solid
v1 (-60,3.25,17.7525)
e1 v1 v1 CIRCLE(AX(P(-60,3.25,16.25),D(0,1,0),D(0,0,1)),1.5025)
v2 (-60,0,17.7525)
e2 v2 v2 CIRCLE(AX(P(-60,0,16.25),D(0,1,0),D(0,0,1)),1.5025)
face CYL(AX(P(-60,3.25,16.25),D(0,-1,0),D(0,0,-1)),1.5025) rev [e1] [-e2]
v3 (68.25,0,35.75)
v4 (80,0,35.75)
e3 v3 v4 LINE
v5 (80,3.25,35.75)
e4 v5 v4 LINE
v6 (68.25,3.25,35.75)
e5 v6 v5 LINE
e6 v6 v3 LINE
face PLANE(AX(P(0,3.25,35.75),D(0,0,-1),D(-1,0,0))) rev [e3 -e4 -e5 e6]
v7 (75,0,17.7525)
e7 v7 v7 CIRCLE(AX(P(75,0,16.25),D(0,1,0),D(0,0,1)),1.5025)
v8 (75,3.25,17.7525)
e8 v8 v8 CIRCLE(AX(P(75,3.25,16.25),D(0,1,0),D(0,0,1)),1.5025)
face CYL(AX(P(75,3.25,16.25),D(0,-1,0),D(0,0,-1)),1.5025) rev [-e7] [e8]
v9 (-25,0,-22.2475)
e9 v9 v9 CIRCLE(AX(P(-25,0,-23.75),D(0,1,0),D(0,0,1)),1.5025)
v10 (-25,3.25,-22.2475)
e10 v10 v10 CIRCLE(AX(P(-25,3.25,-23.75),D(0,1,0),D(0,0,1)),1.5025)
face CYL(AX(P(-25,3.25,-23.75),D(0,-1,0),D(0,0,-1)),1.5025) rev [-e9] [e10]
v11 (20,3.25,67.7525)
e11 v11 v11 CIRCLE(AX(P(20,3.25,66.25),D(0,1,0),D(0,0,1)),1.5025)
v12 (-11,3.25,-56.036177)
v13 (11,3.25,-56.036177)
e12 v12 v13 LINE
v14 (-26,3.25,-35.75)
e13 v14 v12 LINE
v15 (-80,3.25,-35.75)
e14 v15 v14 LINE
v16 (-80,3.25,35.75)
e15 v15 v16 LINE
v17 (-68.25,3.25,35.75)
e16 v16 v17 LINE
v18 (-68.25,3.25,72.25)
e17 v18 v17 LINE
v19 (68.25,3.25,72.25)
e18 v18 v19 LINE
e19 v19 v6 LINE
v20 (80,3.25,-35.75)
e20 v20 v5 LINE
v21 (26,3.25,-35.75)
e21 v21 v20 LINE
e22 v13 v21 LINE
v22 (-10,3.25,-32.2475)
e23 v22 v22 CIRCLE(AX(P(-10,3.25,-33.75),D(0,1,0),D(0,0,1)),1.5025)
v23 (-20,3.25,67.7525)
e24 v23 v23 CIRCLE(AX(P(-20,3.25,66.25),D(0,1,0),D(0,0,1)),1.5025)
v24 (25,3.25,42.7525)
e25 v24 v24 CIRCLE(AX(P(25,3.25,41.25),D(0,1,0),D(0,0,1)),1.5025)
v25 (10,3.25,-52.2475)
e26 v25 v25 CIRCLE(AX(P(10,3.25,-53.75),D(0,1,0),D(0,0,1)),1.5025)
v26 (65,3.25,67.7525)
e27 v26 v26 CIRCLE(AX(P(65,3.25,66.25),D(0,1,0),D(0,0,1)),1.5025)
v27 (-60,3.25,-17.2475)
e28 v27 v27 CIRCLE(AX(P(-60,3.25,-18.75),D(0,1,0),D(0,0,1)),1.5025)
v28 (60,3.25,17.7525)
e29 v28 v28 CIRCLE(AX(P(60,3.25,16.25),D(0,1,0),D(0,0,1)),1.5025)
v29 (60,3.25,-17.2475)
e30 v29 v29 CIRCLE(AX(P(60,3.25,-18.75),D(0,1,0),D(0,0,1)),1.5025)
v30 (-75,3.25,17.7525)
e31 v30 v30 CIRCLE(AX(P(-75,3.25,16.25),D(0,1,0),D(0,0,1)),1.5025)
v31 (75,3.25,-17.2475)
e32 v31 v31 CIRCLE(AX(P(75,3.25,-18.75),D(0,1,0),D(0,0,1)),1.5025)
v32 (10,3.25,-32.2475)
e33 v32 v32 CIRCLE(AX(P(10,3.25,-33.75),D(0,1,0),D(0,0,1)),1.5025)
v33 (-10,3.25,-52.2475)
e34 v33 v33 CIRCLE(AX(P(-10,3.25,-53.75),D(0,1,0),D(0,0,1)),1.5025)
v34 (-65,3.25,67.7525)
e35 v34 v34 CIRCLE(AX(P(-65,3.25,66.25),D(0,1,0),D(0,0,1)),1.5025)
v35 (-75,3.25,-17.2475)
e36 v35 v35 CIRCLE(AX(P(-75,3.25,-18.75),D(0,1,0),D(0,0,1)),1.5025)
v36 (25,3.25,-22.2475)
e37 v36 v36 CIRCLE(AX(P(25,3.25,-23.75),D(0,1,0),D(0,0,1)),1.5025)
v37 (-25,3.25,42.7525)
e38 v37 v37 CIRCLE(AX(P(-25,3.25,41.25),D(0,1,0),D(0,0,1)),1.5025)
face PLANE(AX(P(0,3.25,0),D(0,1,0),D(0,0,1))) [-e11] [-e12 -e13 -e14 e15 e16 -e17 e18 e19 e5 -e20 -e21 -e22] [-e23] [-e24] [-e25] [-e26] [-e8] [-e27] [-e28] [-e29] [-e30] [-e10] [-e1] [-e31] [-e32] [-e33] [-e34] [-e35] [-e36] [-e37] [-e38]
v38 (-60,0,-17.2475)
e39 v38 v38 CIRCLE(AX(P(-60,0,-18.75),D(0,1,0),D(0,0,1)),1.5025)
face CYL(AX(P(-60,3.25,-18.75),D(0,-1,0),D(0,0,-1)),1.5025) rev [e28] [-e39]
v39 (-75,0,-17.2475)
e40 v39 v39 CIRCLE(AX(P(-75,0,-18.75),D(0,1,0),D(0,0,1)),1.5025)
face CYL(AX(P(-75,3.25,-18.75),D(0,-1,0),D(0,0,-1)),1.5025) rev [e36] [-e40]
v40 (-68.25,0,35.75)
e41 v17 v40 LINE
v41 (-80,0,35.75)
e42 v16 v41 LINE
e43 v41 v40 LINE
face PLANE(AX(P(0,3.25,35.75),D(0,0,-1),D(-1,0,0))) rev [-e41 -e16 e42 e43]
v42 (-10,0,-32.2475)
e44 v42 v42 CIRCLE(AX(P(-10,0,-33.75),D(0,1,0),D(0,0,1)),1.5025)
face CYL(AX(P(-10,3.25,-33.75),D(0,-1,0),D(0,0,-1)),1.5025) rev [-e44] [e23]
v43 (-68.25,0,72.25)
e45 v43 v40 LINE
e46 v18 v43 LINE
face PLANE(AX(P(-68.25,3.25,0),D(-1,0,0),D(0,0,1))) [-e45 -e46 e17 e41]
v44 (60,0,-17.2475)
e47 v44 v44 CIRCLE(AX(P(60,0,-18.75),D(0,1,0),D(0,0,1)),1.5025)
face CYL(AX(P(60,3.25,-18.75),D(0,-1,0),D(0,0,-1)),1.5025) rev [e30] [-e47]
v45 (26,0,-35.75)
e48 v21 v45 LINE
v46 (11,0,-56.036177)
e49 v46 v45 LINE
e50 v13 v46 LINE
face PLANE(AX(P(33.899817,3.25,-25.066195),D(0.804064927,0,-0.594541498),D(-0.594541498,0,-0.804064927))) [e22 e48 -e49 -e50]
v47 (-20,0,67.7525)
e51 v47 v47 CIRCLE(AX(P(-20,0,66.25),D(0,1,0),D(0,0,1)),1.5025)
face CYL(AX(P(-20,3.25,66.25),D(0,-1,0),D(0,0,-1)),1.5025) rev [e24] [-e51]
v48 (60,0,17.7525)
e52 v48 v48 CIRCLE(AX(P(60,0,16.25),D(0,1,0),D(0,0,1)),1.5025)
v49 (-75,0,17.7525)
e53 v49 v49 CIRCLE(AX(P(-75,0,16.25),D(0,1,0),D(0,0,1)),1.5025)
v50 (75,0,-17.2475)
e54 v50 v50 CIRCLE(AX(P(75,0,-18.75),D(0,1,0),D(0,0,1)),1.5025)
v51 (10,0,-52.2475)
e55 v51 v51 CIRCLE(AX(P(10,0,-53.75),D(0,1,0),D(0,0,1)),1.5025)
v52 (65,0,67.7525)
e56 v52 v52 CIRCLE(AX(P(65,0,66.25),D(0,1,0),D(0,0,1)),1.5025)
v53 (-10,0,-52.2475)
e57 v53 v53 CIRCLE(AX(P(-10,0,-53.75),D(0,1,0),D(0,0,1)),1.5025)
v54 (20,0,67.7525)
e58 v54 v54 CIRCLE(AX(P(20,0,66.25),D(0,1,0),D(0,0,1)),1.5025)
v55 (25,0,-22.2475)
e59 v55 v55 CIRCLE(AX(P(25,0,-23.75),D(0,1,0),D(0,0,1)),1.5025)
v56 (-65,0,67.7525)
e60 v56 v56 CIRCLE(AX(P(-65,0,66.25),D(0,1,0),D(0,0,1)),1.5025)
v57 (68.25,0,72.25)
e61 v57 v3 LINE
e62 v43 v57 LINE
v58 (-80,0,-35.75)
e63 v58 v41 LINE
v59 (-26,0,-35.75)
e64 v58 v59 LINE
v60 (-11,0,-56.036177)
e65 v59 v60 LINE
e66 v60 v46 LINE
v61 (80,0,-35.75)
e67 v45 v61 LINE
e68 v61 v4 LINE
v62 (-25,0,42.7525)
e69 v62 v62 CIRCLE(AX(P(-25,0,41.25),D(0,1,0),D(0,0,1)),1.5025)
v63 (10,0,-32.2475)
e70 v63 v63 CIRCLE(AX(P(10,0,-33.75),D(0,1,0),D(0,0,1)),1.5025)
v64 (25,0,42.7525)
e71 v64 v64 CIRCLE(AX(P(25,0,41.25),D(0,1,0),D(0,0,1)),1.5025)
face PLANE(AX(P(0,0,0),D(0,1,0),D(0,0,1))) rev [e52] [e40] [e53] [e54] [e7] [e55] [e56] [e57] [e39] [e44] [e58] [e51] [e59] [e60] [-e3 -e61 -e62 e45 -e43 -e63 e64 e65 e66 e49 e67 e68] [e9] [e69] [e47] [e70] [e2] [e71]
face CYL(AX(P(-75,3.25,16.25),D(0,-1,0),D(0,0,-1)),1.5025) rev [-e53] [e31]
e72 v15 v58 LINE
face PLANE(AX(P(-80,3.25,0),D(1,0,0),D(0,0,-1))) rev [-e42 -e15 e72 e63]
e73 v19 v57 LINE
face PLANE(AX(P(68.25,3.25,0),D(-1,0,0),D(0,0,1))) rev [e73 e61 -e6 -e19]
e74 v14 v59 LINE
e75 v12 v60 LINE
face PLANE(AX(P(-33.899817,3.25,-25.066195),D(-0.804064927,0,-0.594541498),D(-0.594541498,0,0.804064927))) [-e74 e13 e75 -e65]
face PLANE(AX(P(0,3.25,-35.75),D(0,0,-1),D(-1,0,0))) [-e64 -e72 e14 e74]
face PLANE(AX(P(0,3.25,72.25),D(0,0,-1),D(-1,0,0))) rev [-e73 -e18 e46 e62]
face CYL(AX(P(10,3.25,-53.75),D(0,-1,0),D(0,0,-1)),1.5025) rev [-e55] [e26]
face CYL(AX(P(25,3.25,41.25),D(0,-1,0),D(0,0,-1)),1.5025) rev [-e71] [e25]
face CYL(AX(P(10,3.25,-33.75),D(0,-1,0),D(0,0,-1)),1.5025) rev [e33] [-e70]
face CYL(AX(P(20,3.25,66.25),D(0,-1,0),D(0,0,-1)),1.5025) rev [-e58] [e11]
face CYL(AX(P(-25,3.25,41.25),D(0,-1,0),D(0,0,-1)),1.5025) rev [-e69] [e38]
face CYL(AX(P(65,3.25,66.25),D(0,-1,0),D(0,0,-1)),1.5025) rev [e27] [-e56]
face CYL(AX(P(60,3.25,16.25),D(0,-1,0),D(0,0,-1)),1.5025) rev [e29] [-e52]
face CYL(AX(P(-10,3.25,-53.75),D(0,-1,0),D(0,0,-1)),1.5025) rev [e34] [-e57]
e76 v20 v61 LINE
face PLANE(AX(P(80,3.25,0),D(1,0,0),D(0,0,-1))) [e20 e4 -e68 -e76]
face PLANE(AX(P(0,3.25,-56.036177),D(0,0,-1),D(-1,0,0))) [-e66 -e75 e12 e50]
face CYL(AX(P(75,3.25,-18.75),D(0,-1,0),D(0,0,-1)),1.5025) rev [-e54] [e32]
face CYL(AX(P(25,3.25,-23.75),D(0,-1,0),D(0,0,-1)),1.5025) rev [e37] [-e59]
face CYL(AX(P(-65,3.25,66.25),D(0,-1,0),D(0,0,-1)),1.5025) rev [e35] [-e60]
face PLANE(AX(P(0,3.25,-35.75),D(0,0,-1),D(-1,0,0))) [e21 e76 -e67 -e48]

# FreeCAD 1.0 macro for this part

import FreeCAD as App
import Part
import Sketcher

doc = App.newDocument("Part")
params = doc.addObject("Spreadsheet::Sheet", "Params")
for row, (alias, value) in enumerate([
    ("sketch1_width", "22 mm"),
    ("sketch1_width2", "54 mm"),
    ("sketch1_width3", "136.5 mm"),
    ("sketch1_height", "71.5 mm"),
    ("sketch1_height2", "36.5 mm"),
    ("pad1_length", "3.25 mm"),
], start=1):
    params.set(f"A{row}", alias)
    params.set(f"B{row}", "=" + value)
    params.setAlias(f"B{row}", alias)

body = doc.addObject("PartDesign::Body", "Body")

sketch1 = body.newObject("Sketcher::SketchObject", "Sketch")
sketch1.AttachmentSupport = (doc.getObject("XZ_Plane"), [""])
sketch1.MapMode = "FlatFace"
sketch1.addGeometry([
    Part.LineSegment(App.Vector(11, -56, 0), App.Vector(-11, -56, 0)),
    Part.LineSegment(App.Vector(-11, -56, 0), App.Vector(-26, -35.8, 0)),
    Part.LineSegment(App.Vector(-26, -35.8, 0), App.Vector(-80, -35.8, 0)),
    Part.LineSegment(App.Vector(-80, -35.8, 0), App.Vector(-80, 35.8, 0)),
    Part.LineSegment(App.Vector(-80, 35.8, 0), App.Vector(-68.2, 35.8, 0)),
    Part.LineSegment(App.Vector(-68.2, 35.8, 0), App.Vector(-68.2, 72.2, 0)),
    Part.LineSegment(App.Vector(-68.2, 72.2, 0), App.Vector(68.2, 72.2, 0)),
    Part.LineSegment(App.Vector(68.2, 72.2, 0), App.Vector(68.2, 35.8, 0)),
    Part.LineSegment(App.Vector(68.2, 35.8, 0), App.Vector(80, 35.8, 0)),
    Part.LineSegment(App.Vector(80, 35.8, 0), App.Vector(80, -35.8, 0)),
    Part.LineSegment(App.Vector(80, -35.8, 0), App.Vector(26, -35.8, 0)),
    Part.LineSegment(App.Vector(26, -35.8, 0), App.Vector(11, -56, 0)),
    Part.Circle(App.Vector(65, 66.2, 0), App.Vector(0, 0, 1), 1.5),
    Part.Circle(App.Vector(20, 66.2, 0), App.Vector(0, 0, 1), 1.5),
    Part.Circle(App.Vector(25, 41.2, 0), App.Vector(0, 0, 1), 1.5),
    Part.Circle(App.Vector(75, 16.2, 0), App.Vector(0, 0, 1), 1.5),
    Part.Circle(App.Vector(60, 16.2, 0), App.Vector(0, 0, 1), 1.5),
    Part.Circle(App.Vector(-20, 66.2, 0), App.Vector(0, 0, 1), 1.5),
    Part.Circle(App.Vector(-25, 41.2, 0), App.Vector(0, 0, 1), 1.5),
    Part.Circle(App.Vector(-65, 66.2, 0), App.Vector(0, 0, 1), 1.5),
    Part.Circle(App.Vector(-60, 16.2, 0), App.Vector(0, 0, 1), 1.5),
    Part.Circle(App.Vector(-75, 16.2, 0), App.Vector(0, 0, 1), 1.5),
    Part.Circle(App.Vector(75, -18.8, 0), App.Vector(0, 0, 1), 1.5),
    Part.Circle(App.Vector(60, -18.8, 0), App.Vector(0, 0, 1), 1.5),
    Part.Circle(App.Vector(25, -23.8, 0), App.Vector(0, 0, 1), 1.5),
    Part.Circle(App.Vector(10, -33.8, 0), App.Vector(0, 0, 1), 1.5),
    Part.Circle(App.Vector(10, -53.8, 0), App.Vector(0, 0, 1), 1.5),
    Part.Circle(App.Vector(-25, -23.8, 0), App.Vector(0, 0, 1), 1.5),
    Part.Circle(App.Vector(-60, -18.8, 0), App.Vector(0, 0, 1), 1.5),
    Part.Circle(App.Vector(-75, -18.8, 0), App.Vector(0, 0, 1), 1.5),
    Part.Circle(App.Vector(-10, -33.8, 0), App.Vector(0, 0, 1), 1.5),
    Part.Circle(App.Vector(-10, -53.8, 0), App.Vector(0, 0, 1), 1.5),
], False)
sketch1.addConstraint([
    Sketcher.Constraint("Coincident", 0, 2, 1, 1),
    Sketcher.Constraint("Coincident", 1, 2, 2, 1),
    Sketcher.Constraint("Coincident", 2, 2, 3, 1),
    Sketcher.Constraint("Coincident", 3, 2, 4, 1),
    Sketcher.Constraint("Coincident", 4, 2, 5, 1),
    Sketcher.Constraint("Coincident", 5, 2, 6, 1),
    Sketcher.Constraint("Coincident", 6, 2, 7, 1),
    Sketcher.Constraint("Coincident", 7, 2, 8, 1),
    Sketcher.Constraint("Coincident", 8, 2, 9, 1),
    Sketcher.Constraint("Coincident", 9, 2, 10, 1),
    Sketcher.Constraint("Coincident", 10, 2, 11, 1),
    Sketcher.Constraint("Coincident", 11, 2, 0, 1),
    Sketcher.Constraint("Horizontal", 0),
    Sketcher.Constraint("Horizontal", 2),
    Sketcher.Constraint("Vertical", 3),
    Sketcher.Constraint("Horizontal", 4),
    Sketcher.Constraint("Vertical", 5),
    Sketcher.Constraint("Horizontal", 6),
    Sketcher.Constraint("Vertical", 7),
    Sketcher.Constraint("Horizontal", 8),
    Sketcher.Constraint("Vertical", 9),
    Sketcher.Constraint("Horizontal", 10),
    Sketcher.Constraint("Equal", 12, 13),
    Sketcher.Constraint("Equal", 13, 14),
    Sketcher.Constraint("Equal", 14, 15),
    Sketcher.Constraint("Equal", 15, 16),
    Sketcher.Constraint("Equal", 16, 17),
    Sketcher.Constraint("Equal", 17, 18),
    Sketcher.Constraint("Equal", 18, 19),
    Sketcher.Constraint("Equal", 19, 20),
    Sketcher.Constraint("Equal", 20, 21),
    Sketcher.Constraint("Equal", 21, 22),
    Sketcher.Constraint("Equal", 22, 23),
    Sketcher.Constraint("Equal", 23, 24),
    Sketcher.Constraint("Equal", 24, 25),
    Sketcher.Constraint("Equal", 25, 26),
    Sketcher.Constraint("Equal", 26, 27),
    Sketcher.Constraint("Equal", 27, 28),
    Sketcher.Constraint("Equal", 28, 29),
    Sketcher.Constraint("Equal", 29, 30),
    Sketcher.Constraint("Equal", 30, 31),
    Sketcher.Constraint("Symmetric", 2, 2, 8, 2, -1, 1),
    Sketcher.Constraint("Symmetric", 13, 3, 17, 3, -2),
    Sketcher.Constraint("Symmetric", 14, 3, 18, 3, -2),
    Sketcher.Constraint("Symmetric", 12, 3, 19, 3, -2),
    Sketcher.Constraint("Symmetric", 16, 3, 20, 3, -2),
    Sketcher.Constraint("Symmetric", 15, 3, 21, 3, -2),
    Sketcher.Constraint("Symmetric", 24, 3, 27, 3, -2),
    Sketcher.Constraint("Symmetric", 23, 3, 28, 3, -2),
    Sketcher.Constraint("Symmetric", 22, 3, 29, 3, -2),
    Sketcher.Constraint("Symmetric", 25, 3, 30, 3, -2),
    Sketcher.Constraint("Symmetric", 26, 3, 31, 3, -2),
    Sketcher.Constraint("Symmetric", 4, 2, 7, 2, -2),
    Sketcher.Constraint("Symmetric", 1, 2, 10, 2, -2),
    Sketcher.Constraint("Horizontal", 12, 3, 13, 3),
    Sketcher.Constraint("Horizontal", 15, 3, 16, 3),
    Sketcher.Constraint("Horizontal", 22, 3, 23, 3),
    Sketcher.Constraint("Vertical", 15, 3, 22, 3),
    Sketcher.Constraint("Vertical", 16, 3, 23, 3),
    Sketcher.Constraint("Vertical", 14, 3, 24, 3),
    Sketcher.Constraint("Vertical", 25, 3, 26, 3),
    Sketcher.Constraint("Equal", 1, 11),
    Sketcher.Constraint("DistanceX", 0, 2, 0, 1, 22.0),
    Sketcher.Constraint("DistanceX", 2, 2, 2, 1, 54.0),
    Sketcher.Constraint("Diameter", 12, 3.005),
    Sketcher.Constraint("DistanceX", 6, 1, 6, 2, 136.5),
    Sketcher.Constraint("DistanceY", 3, 1, 3, 2, 71.5),
    Sketcher.Constraint("DistanceY", 5, 1, 5, 2, 36.5),
    Sketcher.Constraint("DistanceX", -1, 1, 12, 3, 65.0),
    Sketcher.Constraint("DistanceX", -1, 1, 13, 3, 20.0),
    Sketcher.Constraint("DistanceX", -1, 1, 14, 3, 25.0),
    Sketcher.Constraint("DistanceX", -1, 1, 15, 3, 75.0),
    Sketcher.Constraint("DistanceX", -1, 1, 16, 3, 60.0),
    Sketcher.Constraint("DistanceX", -1, 1, 25, 3, 10.0),
    Sketcher.Constraint("DistanceX", 1, 2, -1, 1, 26.0),
    Sketcher.Constraint("DistanceY", 14, 3, 13, 3, 25.0),
    Sketcher.Constraint("DistanceY", 15, 3, 12, 3, 50.0),
    Sketcher.Constraint("DistanceY", 22, 3, 15, 3, 35.0),
    Sketcher.Constraint("DistanceY", 24, 3, 23, 3, 5.0),
    Sketcher.Constraint("DistanceY", 25, 3, 24, 3, 10.0),
    Sketcher.Constraint("DistanceY", 26, 3, 25, 3, 20.0),
    Sketcher.Constraint("DistanceY", 1, 2, 27, 3, 12.0),
    Sketcher.Constraint("Distance", 1, 25.229526),
])
sketch1.setExpression("Constraints[62]", "Params.sketch1_width")
sketch1.setExpression("Constraints[63]", "Params.sketch1_width2")
sketch1.setExpression("Constraints[65]", "Params.sketch1_width3")
sketch1.setExpression("Constraints[66]", "Params.sketch1_height")
sketch1.setExpression("Constraints[67]", "Params.sketch1_height2")
pad1 = body.newObject("PartDesign::Pad", "Pad")
pad1.Profile = sketch1
pad1.setExpression("Length", "Params.pad1_length")
pad1.Reversed = True

doc.recompute()
